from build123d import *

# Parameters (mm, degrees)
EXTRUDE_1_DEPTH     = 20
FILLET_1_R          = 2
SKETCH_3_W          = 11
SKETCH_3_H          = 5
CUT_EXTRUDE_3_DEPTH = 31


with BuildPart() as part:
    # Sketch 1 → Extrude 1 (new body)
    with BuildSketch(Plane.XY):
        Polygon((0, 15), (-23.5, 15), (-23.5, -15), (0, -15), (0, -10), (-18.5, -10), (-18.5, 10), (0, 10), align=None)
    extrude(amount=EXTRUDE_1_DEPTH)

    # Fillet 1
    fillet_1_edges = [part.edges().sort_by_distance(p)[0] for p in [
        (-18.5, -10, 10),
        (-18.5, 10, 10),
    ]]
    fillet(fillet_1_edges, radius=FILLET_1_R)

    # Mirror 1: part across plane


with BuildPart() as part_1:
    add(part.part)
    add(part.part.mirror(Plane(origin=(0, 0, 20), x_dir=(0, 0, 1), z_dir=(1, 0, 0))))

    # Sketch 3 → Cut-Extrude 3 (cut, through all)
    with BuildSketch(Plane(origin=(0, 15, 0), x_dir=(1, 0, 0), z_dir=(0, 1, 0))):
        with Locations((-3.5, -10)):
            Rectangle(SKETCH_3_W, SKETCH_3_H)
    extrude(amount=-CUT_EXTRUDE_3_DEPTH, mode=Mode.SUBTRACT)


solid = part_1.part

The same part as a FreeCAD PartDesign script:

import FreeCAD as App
import Part
import Sketcher

V = App.Vector
Q = App.Units.Quantity


def edges_at(feature, points):
    """Names of the edges that pass closest to the given points."""
    edges = feature.Shape.Edges
    near = lambda p: min(range(len(edges)), key=lambda i: edges[i].distToShape(Part.Vertex(*p))[0])
    return sorted({f"Edge{near(p) + 1}" for p in points})


def add_polygon(sketch, points):
    """Adds a closed chain of lines whose ends are joined by coincident constraints."""
    first, n = sketch.GeometryCount, len(points)
    for a, b in zip(points, points[1:] + points[:1]):
        sketch.addGeometry(Part.LineSegment(App.Vector(*a, 0), App.Vector(*b, 0)), False)
    for i in range(n):
        sketch.addConstraint(Sketcher.Constraint("Coincident", first + i, 2, first + (i + 1) % n, 1))

doc = App.newDocument("Part")
params = doc.addObject("Spreadsheet::Sheet", "Params")
for row, (alias, value) in enumerate([
    ("sketch1_height", "30 mm"),
    ("sketch1_height2", "5 mm"),
    ("sketch1_width", "23.5 mm"),
    ("sketch1_width2", "18.5 mm"),
    ("pad1_length", "20 mm"),
    ("fillet_radius", "2 mm"),
    ("sketch2_width", "11 mm"),
    ("sketch2_height", "5 mm"),
], start=1):
    params.set(f"A{row}", alias)
    params.set(f"B{row}", "=" + value)
    params.setAlias(f"B{row}", alias)

body = doc.addObject("PartDesign::Body", "Body")

sketch1 = body.newObject("Sketcher::SketchObject", "Sketch")
sketch1.AttachmentSupport = (doc.getObject("XY_Plane"), [""])
sketch1.MapMode = "FlatFace"
add_polygon(sketch1, [(0, 15), (-24, 15), (-24, -15), (0, -15), (0, -10), (-18, -10), (-18, 10), (0, 10)])
sketch1.addConstraint([
    Sketcher.Constraint("Horizontal", 0),
    Sketcher.Constraint("Vertical", 1),
    Sketcher.Constraint("Horizontal", 2),
    Sketcher.Constraint("Vertical", 3),
    Sketcher.Constraint("Horizontal", 4),
    Sketcher.Constraint("Vertical", 5),
    Sketcher.Constraint("Horizontal", 6),
    Sketcher.Constraint("Vertical", 7),
    Sketcher.Constraint("Symmetric", 3, 2, 6, 2, -1, 1),
    Sketcher.Constraint("Symmetric", 2, 2, 7, 2, -1),
    Sketcher.Constraint("DistanceY", 1, 2, 1, 1, Q("30 mm")),
    Sketcher.Constraint("DistanceY", 3, 1, 3, 2, Q("5 mm")),
    Sketcher.Constraint("DistanceX", 0, 2, 0, 1, Q("23.5 mm")),
    Sketcher.Constraint("DistanceX", 4, 2, 4, 1, Q("18.5 mm")),
])
sketch1.setExpression("Constraints[18]", "Params.sketch1_height")
sketch1.setExpression("Constraints[19]", "Params.sketch1_height2")
sketch1.setExpression("Constraints[20]", "Params.sketch1_width")
sketch1.setExpression("Constraints[21]", "Params.sketch1_width2")
pad1 = body.newObject("PartDesign::Pad", "Pad")
pad1.Profile = sketch1
pad1.setExpression("Length", "Params.pad1_length")
doc.recompute()

fillet = body.newObject("PartDesign::Fillet", "Fillet")
fillet.Base = (pad1, edges_at(pad1, [(-18.5, -10, 10), (-18.5, 10, 10)]))
fillet.setExpression("Radius", "Params.fillet_radius")
body2 = doc.addObject("PartDesign::Body", "Body001")
doc.recompute()

body2.BaseFeature = body
doc.recompute()

mirroring = doc.addObject("Part::Mirroring", "Mirroring")
mirroring.Source = body
mirroring.Base = V(0, 0, 20)
mirroring.Normal = V(1, 0, 0)
body3 = doc.addObject("PartDesign::Body", "Body002")
body3.BaseFeature = mirroring
boolean = body2.newObject("PartDesign::Boolean", "Boolean")
boolean.Type = "Fuse"
boolean.addObjects([body3])
doc.recompute()

sketch2 = body2.newObject("Sketcher::SketchObject", "Sketch001")
sketch2.AttachmentSupport = (doc.getObject("XZ_Plane001"), [""])
sketch2.MapMode = "FlatFace"
sketch2.AttachmentOffset = App.Placement(V(0, 0, -15), App.Rotation())
add_polygon(sketch2, [(-9, 8), (-9, 12), (2, 12), (2, 8)])
sketch2.addConstraint([
    Sketcher.Constraint("Vertical", 0),
    Sketcher.Constraint("Horizontal", 1),
    Sketcher.Constraint("Vertical", 2),
    Sketcher.Constraint("Horizontal", 3),
    Sketcher.Constraint("DistanceX", 1, 1, 1, 2, Q("11 mm")),
    Sketcher.Constraint("DistanceY", 0, 1, 0, 2, Q("5 mm")),
    Sketcher.Constraint("DistanceX", 0, 2, -1, 1, Q("9 mm")),
    Sketcher.Constraint("DistanceY", -1, 1, 0, 2, Q("12.5 mm")),
])
sketch2.setExpression("Constraints[8]", "Params.sketch2_width")
sketch2.setExpression("Constraints[9]", "Params.sketch2_height")
pocket1 = body2.newObject("PartDesign::Pocket", "Pocket")
pocket1.Profile = sketch2
pocket1.Type = "ThroughAll"
pocket1.Reversed = True
mirroring.Visibility = False

doc.recompute()
